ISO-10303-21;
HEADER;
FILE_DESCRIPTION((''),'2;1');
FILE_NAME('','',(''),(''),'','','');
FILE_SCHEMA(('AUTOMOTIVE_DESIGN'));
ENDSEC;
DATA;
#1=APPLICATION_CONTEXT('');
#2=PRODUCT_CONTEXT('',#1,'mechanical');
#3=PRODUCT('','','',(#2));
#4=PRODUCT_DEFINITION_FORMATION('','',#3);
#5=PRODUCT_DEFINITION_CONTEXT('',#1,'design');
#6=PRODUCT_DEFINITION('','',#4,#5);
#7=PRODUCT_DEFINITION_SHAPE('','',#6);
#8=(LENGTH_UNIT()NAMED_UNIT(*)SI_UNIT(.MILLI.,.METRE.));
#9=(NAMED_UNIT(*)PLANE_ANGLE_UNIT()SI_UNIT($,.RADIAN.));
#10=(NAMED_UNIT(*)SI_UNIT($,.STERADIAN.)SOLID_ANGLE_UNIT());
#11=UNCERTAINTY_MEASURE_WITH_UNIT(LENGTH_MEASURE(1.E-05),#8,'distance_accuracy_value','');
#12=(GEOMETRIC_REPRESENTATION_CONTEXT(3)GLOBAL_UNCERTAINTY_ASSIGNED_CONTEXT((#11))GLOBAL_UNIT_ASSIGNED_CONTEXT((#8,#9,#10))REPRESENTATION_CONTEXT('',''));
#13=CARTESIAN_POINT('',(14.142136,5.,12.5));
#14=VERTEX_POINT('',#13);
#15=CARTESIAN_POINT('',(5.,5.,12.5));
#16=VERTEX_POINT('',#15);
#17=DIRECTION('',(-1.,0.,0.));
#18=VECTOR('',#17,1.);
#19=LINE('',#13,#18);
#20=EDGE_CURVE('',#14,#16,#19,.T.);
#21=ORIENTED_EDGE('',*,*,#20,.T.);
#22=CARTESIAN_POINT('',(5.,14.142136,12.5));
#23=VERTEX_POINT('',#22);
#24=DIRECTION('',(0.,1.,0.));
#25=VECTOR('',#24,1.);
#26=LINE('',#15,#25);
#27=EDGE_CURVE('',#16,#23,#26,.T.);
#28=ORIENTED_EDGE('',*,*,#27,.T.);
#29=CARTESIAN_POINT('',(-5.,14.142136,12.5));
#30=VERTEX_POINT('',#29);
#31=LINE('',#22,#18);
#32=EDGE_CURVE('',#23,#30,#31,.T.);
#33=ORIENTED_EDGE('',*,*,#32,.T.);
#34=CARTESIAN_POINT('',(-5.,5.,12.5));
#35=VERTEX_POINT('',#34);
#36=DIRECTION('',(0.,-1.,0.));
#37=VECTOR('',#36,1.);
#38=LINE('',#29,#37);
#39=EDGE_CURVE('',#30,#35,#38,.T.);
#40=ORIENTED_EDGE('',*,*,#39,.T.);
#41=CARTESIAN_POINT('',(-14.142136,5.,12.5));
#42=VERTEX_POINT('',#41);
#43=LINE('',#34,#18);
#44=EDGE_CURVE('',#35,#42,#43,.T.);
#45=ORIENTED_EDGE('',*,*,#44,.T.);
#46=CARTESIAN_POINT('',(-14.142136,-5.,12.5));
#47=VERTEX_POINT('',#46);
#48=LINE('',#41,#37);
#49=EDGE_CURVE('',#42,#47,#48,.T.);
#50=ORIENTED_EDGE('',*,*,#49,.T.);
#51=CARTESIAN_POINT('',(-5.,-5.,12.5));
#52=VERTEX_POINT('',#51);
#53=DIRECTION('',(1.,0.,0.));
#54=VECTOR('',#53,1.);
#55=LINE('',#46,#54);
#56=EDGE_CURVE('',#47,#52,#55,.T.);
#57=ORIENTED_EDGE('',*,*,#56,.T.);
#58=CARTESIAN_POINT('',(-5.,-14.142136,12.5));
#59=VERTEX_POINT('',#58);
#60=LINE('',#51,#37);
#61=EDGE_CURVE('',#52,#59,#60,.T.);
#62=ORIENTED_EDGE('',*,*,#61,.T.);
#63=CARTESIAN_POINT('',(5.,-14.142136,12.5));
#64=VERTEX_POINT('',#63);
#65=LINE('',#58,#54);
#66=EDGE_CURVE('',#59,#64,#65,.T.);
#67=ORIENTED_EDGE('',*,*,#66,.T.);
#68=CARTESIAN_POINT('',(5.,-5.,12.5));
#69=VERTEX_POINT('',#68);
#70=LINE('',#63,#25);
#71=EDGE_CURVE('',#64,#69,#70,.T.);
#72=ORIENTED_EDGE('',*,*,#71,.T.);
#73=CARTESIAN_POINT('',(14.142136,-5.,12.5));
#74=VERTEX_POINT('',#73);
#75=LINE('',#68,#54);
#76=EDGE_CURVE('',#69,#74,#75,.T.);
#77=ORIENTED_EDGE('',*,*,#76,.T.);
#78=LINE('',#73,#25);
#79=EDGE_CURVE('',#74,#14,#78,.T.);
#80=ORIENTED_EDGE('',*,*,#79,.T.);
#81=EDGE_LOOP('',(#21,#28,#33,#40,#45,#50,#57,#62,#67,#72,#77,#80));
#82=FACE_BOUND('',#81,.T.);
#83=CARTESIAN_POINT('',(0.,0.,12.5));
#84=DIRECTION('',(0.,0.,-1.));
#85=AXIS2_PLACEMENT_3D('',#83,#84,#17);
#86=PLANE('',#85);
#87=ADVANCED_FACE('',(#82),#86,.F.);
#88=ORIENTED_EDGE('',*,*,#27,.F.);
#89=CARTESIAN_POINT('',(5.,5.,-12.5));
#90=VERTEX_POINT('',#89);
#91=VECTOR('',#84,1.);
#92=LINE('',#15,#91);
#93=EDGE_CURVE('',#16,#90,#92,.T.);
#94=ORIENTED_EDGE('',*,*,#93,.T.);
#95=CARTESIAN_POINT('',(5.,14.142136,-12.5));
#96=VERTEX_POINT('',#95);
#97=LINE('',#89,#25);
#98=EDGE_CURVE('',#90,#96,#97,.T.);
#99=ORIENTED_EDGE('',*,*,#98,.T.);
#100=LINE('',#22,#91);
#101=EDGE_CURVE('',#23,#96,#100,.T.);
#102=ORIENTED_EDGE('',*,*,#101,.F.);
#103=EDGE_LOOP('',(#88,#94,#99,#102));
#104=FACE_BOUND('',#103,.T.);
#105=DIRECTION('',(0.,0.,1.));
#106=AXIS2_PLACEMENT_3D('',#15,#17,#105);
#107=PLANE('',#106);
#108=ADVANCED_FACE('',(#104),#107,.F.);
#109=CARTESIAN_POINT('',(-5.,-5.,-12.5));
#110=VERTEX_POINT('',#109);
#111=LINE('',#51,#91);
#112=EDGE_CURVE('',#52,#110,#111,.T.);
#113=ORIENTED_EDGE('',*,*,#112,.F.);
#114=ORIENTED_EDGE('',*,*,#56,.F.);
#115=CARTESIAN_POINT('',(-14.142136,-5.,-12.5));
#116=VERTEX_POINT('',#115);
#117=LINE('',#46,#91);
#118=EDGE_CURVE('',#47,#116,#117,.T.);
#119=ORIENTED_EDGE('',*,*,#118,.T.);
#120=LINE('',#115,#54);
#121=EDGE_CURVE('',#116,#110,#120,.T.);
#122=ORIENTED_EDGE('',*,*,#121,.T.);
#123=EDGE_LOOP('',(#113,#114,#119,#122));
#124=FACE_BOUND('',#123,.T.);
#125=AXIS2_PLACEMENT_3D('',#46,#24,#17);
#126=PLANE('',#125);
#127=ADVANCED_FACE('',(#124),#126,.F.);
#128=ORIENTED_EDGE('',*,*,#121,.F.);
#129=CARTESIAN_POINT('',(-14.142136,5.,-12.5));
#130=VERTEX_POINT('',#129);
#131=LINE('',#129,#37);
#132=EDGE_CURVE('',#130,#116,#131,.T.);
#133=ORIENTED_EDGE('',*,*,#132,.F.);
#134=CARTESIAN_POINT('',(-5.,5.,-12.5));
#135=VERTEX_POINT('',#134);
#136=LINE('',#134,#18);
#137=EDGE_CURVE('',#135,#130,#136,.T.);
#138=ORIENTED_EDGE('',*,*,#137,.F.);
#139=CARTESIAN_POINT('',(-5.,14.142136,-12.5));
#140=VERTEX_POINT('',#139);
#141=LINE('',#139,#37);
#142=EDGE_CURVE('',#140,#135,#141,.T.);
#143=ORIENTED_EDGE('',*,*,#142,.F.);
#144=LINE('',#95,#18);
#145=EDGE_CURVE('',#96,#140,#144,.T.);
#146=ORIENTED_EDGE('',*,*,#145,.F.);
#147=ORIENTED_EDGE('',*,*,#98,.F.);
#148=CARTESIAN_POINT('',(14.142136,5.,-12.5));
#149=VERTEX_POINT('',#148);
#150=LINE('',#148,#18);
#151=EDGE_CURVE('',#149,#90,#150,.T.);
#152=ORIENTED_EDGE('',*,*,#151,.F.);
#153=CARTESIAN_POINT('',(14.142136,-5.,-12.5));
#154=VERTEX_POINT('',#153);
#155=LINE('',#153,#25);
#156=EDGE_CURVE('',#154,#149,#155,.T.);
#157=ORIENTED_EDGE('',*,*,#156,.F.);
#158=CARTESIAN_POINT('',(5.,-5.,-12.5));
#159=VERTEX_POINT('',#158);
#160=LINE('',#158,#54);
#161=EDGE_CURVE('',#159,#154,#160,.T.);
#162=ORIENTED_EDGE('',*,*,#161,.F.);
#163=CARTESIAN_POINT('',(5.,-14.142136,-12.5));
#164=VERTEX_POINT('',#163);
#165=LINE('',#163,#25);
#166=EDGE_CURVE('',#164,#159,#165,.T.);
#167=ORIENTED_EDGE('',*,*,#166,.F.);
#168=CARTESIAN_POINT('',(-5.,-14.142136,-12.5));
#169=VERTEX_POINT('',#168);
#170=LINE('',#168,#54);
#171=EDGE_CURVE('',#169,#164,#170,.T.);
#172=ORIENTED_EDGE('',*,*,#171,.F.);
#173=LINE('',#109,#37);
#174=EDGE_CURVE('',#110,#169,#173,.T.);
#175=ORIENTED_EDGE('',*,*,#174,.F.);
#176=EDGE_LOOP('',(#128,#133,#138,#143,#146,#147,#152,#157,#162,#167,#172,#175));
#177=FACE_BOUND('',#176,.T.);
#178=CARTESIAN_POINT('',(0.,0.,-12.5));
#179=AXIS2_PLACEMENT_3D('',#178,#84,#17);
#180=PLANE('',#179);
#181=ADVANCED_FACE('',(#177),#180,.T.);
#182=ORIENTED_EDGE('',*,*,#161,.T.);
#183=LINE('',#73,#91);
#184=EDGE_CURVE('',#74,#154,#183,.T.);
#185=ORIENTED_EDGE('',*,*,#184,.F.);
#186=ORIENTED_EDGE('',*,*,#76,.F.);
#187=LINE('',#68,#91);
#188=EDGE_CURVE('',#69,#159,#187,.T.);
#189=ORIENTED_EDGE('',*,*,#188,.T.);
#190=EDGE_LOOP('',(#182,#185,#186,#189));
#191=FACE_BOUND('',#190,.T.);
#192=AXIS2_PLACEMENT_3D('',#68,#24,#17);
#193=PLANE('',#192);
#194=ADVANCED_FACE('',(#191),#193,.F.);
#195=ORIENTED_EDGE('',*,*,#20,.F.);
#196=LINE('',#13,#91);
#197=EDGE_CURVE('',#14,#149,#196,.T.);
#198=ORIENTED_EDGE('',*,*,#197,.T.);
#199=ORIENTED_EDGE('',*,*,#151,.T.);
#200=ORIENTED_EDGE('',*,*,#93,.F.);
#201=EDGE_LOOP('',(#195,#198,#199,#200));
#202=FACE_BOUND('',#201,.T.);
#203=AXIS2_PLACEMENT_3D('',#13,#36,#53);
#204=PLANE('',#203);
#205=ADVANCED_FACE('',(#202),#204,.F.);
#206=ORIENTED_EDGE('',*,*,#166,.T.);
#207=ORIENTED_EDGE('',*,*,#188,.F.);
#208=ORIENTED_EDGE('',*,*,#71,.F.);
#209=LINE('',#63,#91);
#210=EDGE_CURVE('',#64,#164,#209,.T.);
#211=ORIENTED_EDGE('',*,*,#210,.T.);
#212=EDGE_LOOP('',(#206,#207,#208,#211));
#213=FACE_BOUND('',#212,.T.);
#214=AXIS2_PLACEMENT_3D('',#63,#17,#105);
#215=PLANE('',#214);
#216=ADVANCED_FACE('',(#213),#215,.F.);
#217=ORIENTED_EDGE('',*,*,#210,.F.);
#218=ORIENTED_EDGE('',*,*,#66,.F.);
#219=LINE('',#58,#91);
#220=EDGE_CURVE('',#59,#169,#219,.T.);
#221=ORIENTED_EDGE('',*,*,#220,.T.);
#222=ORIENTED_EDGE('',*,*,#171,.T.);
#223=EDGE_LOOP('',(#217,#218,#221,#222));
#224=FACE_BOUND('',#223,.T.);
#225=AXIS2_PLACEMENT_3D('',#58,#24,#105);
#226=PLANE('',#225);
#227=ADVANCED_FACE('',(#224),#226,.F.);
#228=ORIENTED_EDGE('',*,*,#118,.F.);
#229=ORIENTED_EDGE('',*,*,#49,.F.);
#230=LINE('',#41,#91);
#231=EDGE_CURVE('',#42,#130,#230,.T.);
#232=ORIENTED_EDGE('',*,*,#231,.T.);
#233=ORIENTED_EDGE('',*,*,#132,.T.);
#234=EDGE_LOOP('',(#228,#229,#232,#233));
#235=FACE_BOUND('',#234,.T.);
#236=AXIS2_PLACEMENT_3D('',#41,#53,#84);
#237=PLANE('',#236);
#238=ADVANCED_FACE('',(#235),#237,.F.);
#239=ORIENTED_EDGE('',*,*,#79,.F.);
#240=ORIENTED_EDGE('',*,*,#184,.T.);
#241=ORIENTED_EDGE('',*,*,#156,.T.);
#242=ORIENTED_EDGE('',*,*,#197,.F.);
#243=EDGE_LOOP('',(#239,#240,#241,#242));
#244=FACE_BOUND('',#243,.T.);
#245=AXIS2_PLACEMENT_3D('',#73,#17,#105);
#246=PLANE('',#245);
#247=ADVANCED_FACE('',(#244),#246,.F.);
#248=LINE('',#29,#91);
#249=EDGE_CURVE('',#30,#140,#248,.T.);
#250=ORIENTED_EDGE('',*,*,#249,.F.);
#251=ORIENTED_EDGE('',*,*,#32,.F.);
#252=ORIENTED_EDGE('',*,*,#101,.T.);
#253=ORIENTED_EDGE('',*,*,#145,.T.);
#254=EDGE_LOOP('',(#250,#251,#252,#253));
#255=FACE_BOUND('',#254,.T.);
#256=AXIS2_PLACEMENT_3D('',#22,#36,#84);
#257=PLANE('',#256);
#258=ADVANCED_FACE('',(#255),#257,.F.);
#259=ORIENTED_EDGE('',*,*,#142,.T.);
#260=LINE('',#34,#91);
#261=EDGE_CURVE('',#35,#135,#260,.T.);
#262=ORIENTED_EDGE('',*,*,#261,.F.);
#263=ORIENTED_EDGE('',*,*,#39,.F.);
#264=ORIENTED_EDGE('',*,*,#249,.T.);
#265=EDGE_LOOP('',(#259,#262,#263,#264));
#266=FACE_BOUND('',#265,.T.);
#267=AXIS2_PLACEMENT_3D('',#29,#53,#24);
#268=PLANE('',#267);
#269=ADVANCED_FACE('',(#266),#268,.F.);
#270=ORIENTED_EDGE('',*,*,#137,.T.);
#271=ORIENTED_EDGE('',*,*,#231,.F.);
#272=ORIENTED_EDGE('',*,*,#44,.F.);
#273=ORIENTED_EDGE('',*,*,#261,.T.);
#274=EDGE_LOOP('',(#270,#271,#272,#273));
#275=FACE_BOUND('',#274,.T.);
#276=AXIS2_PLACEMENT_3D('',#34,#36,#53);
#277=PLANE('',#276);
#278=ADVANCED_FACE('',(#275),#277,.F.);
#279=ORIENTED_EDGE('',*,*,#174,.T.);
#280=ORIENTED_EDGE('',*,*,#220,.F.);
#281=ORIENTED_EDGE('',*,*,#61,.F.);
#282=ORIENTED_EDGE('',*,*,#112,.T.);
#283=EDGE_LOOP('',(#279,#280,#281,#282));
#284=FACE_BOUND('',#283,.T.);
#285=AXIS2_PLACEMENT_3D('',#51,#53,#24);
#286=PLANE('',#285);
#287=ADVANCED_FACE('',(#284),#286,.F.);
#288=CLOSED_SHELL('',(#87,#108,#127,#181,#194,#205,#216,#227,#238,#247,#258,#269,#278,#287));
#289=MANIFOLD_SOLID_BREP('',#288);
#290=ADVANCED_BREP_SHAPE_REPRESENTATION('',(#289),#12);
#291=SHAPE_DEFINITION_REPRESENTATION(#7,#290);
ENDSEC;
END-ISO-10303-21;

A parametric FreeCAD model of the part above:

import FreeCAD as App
import Part
import Sketcher

V = App.Vector


def add_polygon(sketch, points):
    """Adds a closed chain of lines whose ends are joined by coincident constraints."""
    first, n = sketch.GeometryCount, len(points)
    for a, b in zip(points, points[1:] + points[:1]):
        sketch.addGeometry(Part.LineSegment(App.Vector(*a, 0), App.Vector(*b, 0)), False)
    for i in range(n):
        sketch.addConstraint(Sketcher.Constraint("Coincident", first + i, 2, first + (i + 1) % n, 1))

doc = App.newDocument("Part")
body = doc.addObject("PartDesign::Body", "Body")

# Sketch on XY plane
sketch1 = body.newObject("Sketcher::SketchObject", "Sketch")
sketch1.AttachmentSupport = (doc.getObject("XY_Plane"), [""])
sketch1.MapMode = "FlatFace"
add_polygon(sketch1, [(-5, 14), (-5, 5), (-14, 5), (-14, -5), (-5, -5), (-5, -14), (5, -14), (5, -5), (14, -5), (14, 5), (5, 5), (5, 14)])  # lines 0-11
sketch1.addConstraint(Sketcher.Constraint("Vertical", 0))
sketch1.addConstraint(Sketcher.Constraint("Horizontal", 1))
sketch1.addConstraint(Sketcher.Constraint("Vertical", 2))
sketch1.addConstraint(Sketcher.Constraint("Horizontal", 3))
sketch1.addConstraint(Sketcher.Constraint("Vertical", 4))
sketch1.addConstraint(Sketcher.Constraint("Horizontal", 5))
sketch1.addConstraint(Sketcher.Constraint("Vertical", 6))
sketch1.addConstraint(Sketcher.Constraint("Horizontal", 7))
sketch1.addConstraint(Sketcher.Constraint("Vertical", 8))
sketch1.addConstraint(Sketcher.Constraint("Horizontal", 9))
sketch1.addConstraint(Sketcher.Constraint("Vertical", 10))
sketch1.addConstraint(Sketcher.Constraint("Horizontal", 11))
sketch1.addConstraint(Sketcher.Constraint("Symmetric", 0, 2, 6, 2, -1, 1))
sketch1.addConstraint(Sketcher.Constraint("Symmetric", 2, 2, 8, 2, -1, 1))
sketch1.addConstraint(Sketcher.Constraint("Symmetric", 4, 2, 10, 2, -1, 1))
sketch1.addConstraint(Sketcher.Constraint("Symmetric", 3, 2, 6, 2, -2))
sketch1.addConstraint(Sketcher.Constraint("Equal", 9, 0))
sketch1.addConstraint(Sketcher.Constraint("Equal", 11, 2))
sketch1.addConstraint(Sketcher.Constraint("DistanceX", 5, 1, 5, 2, 10.0))
sketch1.addConstraint(Sketcher.Constraint("DistanceX", 1, 2, 1, 1, 9.142136))
pad1 = body.newObject("PartDesign::Pad", "Pad")
pad1.Profile = sketch1
pad1.Length = 25
pad1.Midplane = True

doc.recompute()
